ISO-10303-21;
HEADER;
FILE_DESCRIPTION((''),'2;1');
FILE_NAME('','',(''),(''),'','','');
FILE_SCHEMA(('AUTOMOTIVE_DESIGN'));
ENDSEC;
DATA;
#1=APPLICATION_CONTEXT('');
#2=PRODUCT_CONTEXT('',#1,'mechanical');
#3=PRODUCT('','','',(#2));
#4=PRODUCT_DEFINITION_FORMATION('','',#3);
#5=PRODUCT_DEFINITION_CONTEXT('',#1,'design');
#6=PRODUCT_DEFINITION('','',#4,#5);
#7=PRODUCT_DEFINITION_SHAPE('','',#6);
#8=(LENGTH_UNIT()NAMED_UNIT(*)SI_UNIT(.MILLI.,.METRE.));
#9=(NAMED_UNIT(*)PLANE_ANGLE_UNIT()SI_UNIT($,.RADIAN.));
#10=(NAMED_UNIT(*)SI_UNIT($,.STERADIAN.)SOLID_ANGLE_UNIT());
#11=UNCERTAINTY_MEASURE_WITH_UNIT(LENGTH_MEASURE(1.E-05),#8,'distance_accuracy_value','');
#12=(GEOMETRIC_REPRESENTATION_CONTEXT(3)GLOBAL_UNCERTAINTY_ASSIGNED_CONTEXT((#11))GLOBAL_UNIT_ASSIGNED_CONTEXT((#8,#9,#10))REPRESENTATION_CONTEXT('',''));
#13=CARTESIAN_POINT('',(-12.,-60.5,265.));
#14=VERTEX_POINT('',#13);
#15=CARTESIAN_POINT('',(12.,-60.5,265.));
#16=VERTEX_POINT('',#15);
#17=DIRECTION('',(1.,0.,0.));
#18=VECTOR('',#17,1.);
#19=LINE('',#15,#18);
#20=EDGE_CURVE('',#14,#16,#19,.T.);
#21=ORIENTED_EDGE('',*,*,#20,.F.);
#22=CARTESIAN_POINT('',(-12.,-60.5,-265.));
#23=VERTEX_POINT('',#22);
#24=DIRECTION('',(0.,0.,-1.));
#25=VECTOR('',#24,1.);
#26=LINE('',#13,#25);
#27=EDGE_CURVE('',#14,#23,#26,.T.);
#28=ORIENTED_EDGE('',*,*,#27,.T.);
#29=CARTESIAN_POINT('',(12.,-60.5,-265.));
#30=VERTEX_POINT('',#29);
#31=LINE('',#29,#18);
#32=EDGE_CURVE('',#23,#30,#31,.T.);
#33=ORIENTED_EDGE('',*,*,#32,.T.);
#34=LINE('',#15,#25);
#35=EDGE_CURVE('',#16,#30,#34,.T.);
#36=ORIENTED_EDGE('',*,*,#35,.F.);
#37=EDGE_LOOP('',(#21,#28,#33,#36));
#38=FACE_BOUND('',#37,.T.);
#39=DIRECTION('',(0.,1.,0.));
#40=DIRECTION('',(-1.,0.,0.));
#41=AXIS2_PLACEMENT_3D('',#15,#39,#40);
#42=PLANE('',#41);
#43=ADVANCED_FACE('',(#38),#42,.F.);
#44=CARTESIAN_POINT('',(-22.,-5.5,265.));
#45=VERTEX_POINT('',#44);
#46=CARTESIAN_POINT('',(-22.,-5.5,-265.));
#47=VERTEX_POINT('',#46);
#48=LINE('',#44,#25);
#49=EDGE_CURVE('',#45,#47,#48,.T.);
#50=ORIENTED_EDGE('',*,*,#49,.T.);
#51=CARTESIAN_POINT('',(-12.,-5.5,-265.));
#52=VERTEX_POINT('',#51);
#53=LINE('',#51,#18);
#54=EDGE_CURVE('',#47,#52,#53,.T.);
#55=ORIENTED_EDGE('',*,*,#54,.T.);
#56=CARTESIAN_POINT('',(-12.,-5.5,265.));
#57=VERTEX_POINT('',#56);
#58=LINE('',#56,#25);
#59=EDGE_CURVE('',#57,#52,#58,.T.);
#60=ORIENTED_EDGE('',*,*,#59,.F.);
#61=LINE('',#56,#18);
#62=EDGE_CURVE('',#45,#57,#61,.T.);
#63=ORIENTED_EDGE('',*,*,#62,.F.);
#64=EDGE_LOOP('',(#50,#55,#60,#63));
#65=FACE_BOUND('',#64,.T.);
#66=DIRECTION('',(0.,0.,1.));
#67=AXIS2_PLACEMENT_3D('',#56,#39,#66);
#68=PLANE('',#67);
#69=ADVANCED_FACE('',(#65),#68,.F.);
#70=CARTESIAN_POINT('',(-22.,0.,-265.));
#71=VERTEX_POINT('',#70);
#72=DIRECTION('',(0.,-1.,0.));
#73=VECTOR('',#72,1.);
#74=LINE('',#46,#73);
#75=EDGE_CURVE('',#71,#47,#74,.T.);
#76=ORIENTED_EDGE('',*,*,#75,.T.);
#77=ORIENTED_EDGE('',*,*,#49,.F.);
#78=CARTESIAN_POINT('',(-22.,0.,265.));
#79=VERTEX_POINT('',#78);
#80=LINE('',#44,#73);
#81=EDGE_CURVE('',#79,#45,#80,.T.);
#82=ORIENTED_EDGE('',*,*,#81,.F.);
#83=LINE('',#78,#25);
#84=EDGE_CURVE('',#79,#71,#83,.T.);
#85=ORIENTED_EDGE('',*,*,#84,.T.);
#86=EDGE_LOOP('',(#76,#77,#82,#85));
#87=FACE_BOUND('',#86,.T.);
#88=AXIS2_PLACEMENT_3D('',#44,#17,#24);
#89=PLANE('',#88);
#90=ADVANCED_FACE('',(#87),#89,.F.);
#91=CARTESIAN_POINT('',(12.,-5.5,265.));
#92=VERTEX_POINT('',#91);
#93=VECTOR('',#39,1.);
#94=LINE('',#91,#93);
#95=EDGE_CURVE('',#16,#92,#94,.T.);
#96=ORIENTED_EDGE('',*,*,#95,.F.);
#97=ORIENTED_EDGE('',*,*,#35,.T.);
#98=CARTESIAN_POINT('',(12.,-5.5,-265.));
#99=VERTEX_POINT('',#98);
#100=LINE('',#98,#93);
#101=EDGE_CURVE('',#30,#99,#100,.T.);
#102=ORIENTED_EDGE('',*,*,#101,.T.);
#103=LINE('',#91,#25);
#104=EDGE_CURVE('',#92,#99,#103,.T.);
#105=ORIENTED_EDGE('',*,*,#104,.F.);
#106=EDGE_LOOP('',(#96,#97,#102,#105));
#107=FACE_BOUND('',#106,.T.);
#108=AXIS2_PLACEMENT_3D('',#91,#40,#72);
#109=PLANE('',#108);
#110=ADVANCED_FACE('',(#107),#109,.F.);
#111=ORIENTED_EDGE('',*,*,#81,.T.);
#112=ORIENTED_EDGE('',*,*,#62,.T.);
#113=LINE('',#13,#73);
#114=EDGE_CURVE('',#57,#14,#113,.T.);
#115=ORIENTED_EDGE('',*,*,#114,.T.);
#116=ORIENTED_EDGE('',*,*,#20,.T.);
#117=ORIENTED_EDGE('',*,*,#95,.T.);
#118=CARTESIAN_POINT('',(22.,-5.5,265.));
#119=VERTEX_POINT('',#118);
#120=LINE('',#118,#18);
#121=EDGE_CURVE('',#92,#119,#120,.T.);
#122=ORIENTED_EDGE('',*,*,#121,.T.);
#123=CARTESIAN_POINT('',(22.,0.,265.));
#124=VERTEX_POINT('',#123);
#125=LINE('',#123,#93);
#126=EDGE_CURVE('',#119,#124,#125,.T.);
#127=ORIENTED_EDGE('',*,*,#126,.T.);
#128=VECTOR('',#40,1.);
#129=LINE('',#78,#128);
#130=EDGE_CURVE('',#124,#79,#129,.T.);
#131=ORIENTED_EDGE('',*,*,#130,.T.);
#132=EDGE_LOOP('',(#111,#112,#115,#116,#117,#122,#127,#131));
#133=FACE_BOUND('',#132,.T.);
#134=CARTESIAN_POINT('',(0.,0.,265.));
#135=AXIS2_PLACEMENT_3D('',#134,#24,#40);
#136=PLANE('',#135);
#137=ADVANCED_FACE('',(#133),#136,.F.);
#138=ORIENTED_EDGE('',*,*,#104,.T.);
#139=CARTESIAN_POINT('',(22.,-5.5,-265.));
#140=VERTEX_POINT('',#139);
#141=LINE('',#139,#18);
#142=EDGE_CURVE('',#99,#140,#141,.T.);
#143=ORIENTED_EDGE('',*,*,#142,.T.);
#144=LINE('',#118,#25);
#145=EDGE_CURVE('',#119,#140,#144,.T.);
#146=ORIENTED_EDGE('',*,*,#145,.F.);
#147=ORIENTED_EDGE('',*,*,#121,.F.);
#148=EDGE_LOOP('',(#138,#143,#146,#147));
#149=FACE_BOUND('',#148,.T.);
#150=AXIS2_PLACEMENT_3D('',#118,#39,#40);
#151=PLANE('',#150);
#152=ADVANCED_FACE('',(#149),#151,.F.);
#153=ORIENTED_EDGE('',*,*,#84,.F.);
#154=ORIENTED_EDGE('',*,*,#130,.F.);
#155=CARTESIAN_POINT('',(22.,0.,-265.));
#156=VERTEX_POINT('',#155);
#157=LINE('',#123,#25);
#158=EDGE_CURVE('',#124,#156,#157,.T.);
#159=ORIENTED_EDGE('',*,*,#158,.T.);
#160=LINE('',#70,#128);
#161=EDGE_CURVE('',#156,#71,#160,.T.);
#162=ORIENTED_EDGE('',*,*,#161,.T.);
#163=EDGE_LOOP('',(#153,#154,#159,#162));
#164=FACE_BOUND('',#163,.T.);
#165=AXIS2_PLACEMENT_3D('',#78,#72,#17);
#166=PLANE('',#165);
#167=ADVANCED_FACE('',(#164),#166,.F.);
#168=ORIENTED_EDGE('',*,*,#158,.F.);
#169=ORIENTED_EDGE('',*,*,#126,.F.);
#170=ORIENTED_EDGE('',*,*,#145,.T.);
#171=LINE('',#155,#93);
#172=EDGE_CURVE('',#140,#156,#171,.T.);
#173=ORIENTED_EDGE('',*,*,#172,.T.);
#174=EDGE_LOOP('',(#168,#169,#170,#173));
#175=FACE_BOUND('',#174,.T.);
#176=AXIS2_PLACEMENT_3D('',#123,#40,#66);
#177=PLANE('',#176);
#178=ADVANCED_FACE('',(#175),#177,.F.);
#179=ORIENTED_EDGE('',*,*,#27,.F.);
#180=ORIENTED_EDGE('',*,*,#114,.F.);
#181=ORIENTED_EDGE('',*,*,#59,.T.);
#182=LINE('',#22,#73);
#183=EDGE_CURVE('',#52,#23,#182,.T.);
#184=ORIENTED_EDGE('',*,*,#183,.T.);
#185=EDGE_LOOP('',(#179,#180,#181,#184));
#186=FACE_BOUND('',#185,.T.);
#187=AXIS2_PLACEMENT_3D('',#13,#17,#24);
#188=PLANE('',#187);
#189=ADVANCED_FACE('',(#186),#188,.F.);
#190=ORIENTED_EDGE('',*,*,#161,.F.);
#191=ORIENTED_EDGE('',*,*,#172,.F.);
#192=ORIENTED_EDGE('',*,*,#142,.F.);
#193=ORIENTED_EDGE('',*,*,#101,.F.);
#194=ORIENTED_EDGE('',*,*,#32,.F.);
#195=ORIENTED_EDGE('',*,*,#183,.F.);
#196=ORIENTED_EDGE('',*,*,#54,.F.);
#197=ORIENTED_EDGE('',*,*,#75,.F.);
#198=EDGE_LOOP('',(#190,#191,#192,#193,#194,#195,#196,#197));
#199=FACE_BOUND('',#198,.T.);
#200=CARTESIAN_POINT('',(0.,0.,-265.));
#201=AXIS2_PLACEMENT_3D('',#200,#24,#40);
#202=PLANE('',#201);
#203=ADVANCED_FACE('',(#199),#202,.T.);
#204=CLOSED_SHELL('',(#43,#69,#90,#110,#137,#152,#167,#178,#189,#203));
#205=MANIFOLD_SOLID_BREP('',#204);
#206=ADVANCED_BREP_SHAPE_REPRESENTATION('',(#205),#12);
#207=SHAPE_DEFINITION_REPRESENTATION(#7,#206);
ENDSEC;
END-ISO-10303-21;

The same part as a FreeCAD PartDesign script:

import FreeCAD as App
import Part
import Sketcher
from FreeCAD import Vector


def add_polygon(sketch, points):
    """Adds a closed chain of lines whose ends are joined by coincident constraints."""
    first, n = sketch.GeometryCount, len(points)
    for a, b in zip(points, points[1:] + points[:1]):
        sketch.addGeometry(Part.LineSegment(App.Vector(*a, 0), App.Vector(*b, 0)), False)
    for i in range(n):
        sketch.addConstraint(Sketcher.Constraint("Coincident", first + i, 2, first + (i + 1) % n, 1))

doc = App.newDocument("Part")
params = doc.addObject("Spreadsheet::Sheet", "Params")
for row, (alias, value) in enumerate([
    ("sketch1_width", "44 mm"),
    ("sketch1_width2", "10 mm"),
    ("sketch1_height", "55 mm"),
    ("sketch1_height2", "5.5 mm"),
    ("pad1_length", "530 mm"),
], start=1):
    params.set(f"A{row}", alias)
    params.set(f"B{row}", "=" + value)
    params.setAlias(f"B{row}", alias)

body = doc.addObject("PartDesign::Body", "Body")

# Sketch on XY plane
sketch1 = body.newObject("Sketcher::SketchObject", "Sketch")
sketch1.AttachmentSupport = (doc.getObject("XY_Plane"), [""])
sketch1.MapMode = "FlatFace"
add_polygon(sketch1, [(22, 0), (-22, 0), (-22, -6), (-12, -6), (-12, -60), (12, -60), (12, -6), (22, -6)])  # lines 0-7
sketch1.addConstraint([
    Sketcher.Constraint("Horizontal", 0),
    Sketcher.Constraint("Vertical", 1),
    Sketcher.Constraint("Horizontal", 2),
    Sketcher.Constraint("Vertical", 3),
    Sketcher.Constraint("Horizontal", 4),
    Sketcher.Constraint("Vertical", 5),
    Sketcher.Constraint("Horizontal", 6),
    Sketcher.Constraint("Vertical", 7),
    Sketcher.Constraint("Symmetric", 0, 2, 7, 2, -1, 1),
    Sketcher.Constraint("Symmetric", 2, 2, 5, 2, -2),
    Sketcher.Constraint("DistanceX", 0, 2, 0, 1, 44.0),
    Sketcher.Constraint("DistanceX", 2, 1, 2, 2, 10.0),
    Sketcher.Constraint("DistanceY", 3, 2, 3, 1, 55.0),
    Sketcher.Constraint("DistanceY", 1, 2, 1, 1, 5.5),
])
sketch1.setExpression("Constraints[18]", "Params.sketch1_width")
sketch1.setExpression("Constraints[19]", "Params.sketch1_width2")
sketch1.setExpression("Constraints[20]", "Params.sketch1_height")
sketch1.setExpression("Constraints[21]", "Params.sketch1_height2")
pad1 = body.newObject("PartDesign::Pad", "Pad")
pad1.Profile = sketch1
pad1.setExpression("Length", "Params.pad1_length")
pad1.Midplane = True

doc.recompute()
